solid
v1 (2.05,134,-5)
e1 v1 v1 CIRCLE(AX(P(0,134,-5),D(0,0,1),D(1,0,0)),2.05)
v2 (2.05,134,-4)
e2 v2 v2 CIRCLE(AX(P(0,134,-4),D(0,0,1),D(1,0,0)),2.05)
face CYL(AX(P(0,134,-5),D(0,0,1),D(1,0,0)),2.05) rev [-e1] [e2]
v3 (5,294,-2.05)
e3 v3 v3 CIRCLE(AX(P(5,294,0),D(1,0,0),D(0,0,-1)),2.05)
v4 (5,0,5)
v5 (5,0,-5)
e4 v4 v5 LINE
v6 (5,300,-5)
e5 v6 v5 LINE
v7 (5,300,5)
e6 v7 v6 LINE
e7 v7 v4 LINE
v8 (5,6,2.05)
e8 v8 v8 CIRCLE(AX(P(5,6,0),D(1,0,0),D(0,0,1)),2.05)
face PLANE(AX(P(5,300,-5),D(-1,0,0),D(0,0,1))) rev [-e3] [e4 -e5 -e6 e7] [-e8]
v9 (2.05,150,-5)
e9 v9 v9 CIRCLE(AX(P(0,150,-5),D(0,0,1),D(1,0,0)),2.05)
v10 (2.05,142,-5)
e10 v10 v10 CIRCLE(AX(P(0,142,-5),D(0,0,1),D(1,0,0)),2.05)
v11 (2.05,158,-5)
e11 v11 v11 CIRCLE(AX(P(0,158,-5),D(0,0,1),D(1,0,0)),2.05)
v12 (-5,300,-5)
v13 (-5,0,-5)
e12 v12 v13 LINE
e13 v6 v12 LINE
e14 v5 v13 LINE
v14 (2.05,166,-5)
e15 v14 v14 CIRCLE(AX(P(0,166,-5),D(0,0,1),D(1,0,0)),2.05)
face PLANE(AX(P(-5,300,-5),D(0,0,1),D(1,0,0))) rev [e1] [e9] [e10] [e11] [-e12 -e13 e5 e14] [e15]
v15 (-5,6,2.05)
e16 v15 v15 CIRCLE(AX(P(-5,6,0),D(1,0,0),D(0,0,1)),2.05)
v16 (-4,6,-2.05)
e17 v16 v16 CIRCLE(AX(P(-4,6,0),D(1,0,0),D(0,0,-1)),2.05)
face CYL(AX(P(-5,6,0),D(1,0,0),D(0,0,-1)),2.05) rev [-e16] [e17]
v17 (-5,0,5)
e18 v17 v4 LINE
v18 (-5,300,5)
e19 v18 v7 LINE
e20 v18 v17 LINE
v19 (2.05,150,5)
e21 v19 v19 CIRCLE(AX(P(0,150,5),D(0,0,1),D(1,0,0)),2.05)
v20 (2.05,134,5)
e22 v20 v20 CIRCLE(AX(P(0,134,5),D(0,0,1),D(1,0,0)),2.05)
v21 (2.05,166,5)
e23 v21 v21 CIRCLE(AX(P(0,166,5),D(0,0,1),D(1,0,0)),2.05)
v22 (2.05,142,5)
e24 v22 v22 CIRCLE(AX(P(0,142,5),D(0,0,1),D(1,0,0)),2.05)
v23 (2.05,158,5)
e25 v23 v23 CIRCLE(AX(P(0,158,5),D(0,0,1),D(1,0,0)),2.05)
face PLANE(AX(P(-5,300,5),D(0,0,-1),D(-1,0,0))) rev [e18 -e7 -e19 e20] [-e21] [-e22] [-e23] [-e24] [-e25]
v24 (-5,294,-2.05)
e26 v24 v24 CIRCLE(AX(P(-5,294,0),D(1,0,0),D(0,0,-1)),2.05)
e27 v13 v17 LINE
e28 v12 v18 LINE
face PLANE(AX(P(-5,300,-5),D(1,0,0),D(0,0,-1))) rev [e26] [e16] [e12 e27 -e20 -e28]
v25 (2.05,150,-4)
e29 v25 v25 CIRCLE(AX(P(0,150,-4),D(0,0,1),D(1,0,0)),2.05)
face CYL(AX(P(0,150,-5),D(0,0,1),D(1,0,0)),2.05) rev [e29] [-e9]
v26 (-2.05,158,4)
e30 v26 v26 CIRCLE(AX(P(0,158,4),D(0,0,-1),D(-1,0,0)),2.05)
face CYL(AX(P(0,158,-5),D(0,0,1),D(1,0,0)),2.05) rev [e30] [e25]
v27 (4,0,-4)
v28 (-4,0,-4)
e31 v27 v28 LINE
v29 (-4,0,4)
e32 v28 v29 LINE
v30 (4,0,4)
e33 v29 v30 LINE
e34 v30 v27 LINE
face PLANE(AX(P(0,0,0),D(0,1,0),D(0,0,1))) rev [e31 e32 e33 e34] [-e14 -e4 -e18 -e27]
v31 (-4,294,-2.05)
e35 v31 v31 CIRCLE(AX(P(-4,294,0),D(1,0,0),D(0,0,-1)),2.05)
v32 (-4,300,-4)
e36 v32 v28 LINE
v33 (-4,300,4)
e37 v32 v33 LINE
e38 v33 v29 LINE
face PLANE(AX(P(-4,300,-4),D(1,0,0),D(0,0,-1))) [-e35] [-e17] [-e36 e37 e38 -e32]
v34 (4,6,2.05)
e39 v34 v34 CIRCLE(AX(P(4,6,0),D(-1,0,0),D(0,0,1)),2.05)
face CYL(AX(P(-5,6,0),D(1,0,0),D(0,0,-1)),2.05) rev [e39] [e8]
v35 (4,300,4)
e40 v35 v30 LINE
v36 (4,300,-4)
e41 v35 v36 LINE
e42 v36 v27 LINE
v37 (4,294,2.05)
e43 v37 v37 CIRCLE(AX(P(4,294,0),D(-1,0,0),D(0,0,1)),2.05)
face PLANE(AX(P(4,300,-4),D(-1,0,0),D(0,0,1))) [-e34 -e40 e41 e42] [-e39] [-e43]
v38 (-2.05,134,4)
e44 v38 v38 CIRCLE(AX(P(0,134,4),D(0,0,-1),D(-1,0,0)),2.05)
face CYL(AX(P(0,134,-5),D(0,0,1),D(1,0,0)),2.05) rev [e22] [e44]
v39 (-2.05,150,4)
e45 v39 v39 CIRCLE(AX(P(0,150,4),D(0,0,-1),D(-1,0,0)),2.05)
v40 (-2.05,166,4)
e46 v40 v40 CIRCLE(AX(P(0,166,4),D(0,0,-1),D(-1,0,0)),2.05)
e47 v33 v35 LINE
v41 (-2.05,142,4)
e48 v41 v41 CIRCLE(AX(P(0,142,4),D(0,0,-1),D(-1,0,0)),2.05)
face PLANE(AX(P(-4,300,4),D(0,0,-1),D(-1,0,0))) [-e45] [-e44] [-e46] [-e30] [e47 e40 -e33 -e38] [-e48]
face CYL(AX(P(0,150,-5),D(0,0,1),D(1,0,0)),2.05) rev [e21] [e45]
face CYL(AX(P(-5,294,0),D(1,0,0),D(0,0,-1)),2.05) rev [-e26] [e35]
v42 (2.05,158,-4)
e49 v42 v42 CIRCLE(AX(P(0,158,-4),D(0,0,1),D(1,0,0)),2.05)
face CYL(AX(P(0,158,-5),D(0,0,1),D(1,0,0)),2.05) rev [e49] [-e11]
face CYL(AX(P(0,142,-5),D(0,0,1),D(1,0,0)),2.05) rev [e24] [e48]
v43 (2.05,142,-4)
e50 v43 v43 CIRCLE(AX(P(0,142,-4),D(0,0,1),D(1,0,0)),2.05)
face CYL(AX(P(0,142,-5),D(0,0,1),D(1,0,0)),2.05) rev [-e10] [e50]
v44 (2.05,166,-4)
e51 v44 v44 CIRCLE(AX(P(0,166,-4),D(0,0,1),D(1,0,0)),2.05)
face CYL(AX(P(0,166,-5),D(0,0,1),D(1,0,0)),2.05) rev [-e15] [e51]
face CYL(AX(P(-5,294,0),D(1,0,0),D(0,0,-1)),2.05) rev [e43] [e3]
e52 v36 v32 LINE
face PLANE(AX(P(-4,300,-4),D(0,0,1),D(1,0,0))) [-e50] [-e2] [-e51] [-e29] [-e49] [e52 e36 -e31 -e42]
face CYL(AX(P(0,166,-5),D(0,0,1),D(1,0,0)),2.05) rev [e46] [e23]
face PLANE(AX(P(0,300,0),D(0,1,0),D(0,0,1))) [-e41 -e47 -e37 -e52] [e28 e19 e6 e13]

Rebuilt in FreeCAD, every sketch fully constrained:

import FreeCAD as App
import Part
import Sketcher

V = App.Vector
Q = App.Units.Quantity

doc = App.newDocument("Part")
body = doc.addObject("PartDesign::Body", "Body")

sketch1 = body.newObject("Sketcher::SketchObject", "Sketch")
sketch1.AttachmentSupport = (doc.getObject("XZ_Plane"), [""])
sketch1.MapMode = "FlatFace"
sketch1.addGeometry([
    Part.LineSegment(V(-5, -5, 0), V(-5, 5, 0)),
    Part.LineSegment(V(-5, 5, 0), V(5, 5, 0)),
    Part.LineSegment(V(5, 5, 0), V(5, -5, 0)),
    Part.LineSegment(V(5, -5, 0), V(-5, -5, 0)),
    Part.LineSegment(V(4, 4, 0), V(-4, 4, 0)),
    Part.LineSegment(V(-4, 4, 0), V(-4, -4, 0)),
    Part.LineSegment(V(-4, -4, 0), V(4, -4, 0)),
    Part.LineSegment(V(4, -4, 0), V(4, 4, 0)),
], False)
sketch1.addConstraint([
    Sketcher.Constraint("Coincident", 0, 2, 1, 1),
    Sketcher.Constraint("Coincident", 1, 2, 2, 1),
    Sketcher.Constraint("Coincident", 2, 2, 3, 1),
    Sketcher.Constraint("Coincident", 3, 2, 0, 1),
    Sketcher.Constraint("Coincident", 4, 2, 5, 1),
    Sketcher.Constraint("Coincident", 5, 2, 6, 1),
    Sketcher.Constraint("Coincident", 6, 2, 7, 1),
    Sketcher.Constraint("Coincident", 7, 2, 4, 1),
    Sketcher.Constraint("Vertical", 0),
    Sketcher.Constraint("Horizontal", 1),
    Sketcher.Constraint("Vertical", 2),
    Sketcher.Constraint("Horizontal", 3),
    Sketcher.Constraint("Horizontal", 4),
    Sketcher.Constraint("Vertical", 5),
    Sketcher.Constraint("Horizontal", 6),
    Sketcher.Constraint("Vertical", 7),
    Sketcher.Constraint("Symmetric", 0, 2, 2, 2, -1, 1),
    Sketcher.Constraint("Symmetric", 4, 2, 6, 2, -1, 1),
    Sketcher.Constraint("Equal", 3, 0),
    Sketcher.Constraint("Equal", 6, 5),
    Sketcher.Constraint("DistanceX", 1, 1, 1, 2, Q("10 mm")),
    Sketcher.Constraint("DistanceX", 4, 2, 4, 1, Q("8 mm")),
])
pad1 = body.newObject("PartDesign::Pad", "Pad")
pad1.Profile = sketch1
pad1.Length = 300
pad1.Reversed = True

sketch2 = body.newObject("Sketcher::SketchObject", "Sketch001")
sketch2.AttachmentSupport = (doc.getObject("YZ_Plane"), [""])
sketch2.MapMode = "FlatFace"
sketch2.AttachmentOffset = App.Placement(V(0, 0, 5), App.Rotation())
sketch2.addGeometry([
    Part.Circle(V(294, 0, 0), V(0, 0, 1), 2),
    Part.Circle(V(6, 0, 0), V(0, 0, 1), 2),
], False)
sketch2.addConstraint([
    Sketcher.Constraint("Equal", 0, 1),
    Sketcher.Constraint("PointOnObject", 0, 3, -1),
    Sketcher.Constraint("PointOnObject", 1, 3, -1),
    Sketcher.Constraint("Diameter", 0, Q("4.1 mm")),
    Sketcher.Constraint("DistanceX", -1, 1, 0, 3, Q("294 mm")),
    Sketcher.Constraint("DistanceX", -1, 1, 1, 3, Q("6 mm")),
])
pocket1 = body.newObject("PartDesign::Pocket", "Pocket")
pocket1.Profile = sketch2
pocket1.Type = "ThroughAll"

sketch3 = body.newObject("Sketcher::SketchObject", "Sketch002")
sketch3.AttachmentSupport = (doc.getObject("XY_Plane"), [""])
sketch3.MapMode = "FlatFace"
sketch3.AttachmentOffset = App.Placement(V(0, 0, 5), App.Rotation())
sketch3.addGeometry([
    Part.Circle(V(0, 150, 0), V(0, 0, 1), 2),
    Part.Circle(V(0, 158, 0), V(0, 0, 1), 2),
    Part.Circle(V(0, 166, 0), V(0, 0, 1), 2),
    Part.Circle(V(0, 142, 0), V(0, 0, 1), 2),
    Part.Circle(V(0, 134, 0), V(0, 0, 1), 2),
], False)
sketch3.addConstraint([
    Sketcher.Constraint("Equal", 0, 1),
    Sketcher.Constraint("Equal", 1, 2),
    Sketcher.Constraint("Equal", 2, 3),
    Sketcher.Constraint("Equal", 3, 4),
    Sketcher.Constraint("PointOnObject", 0, 3, -2),
    Sketcher.Constraint("PointOnObject", 1, 3, -2),
    Sketcher.Constraint("PointOnObject", 2, 3, -2),
    Sketcher.Constraint("PointOnObject", 3, 3, -2),
    Sketcher.Constraint("PointOnObject", 4, 3, -2),
    Sketcher.Constraint("Diameter", 0, Q("4.1 mm")),
    Sketcher.Constraint("DistanceY", -1, 1, 0, 3, Q("150 mm")),
    Sketcher.Constraint("DistanceY", -1, 1, 1, 3, Q("158 mm")),
    Sketcher.Constraint("DistanceY", -1, 1, 2, 3, Q("166 mm")),
    Sketcher.Constraint("DistanceY", -1, 1, 3, 3, Q("142 mm")),
    Sketcher.Constraint("DistanceY", -1, 1, 4, 3, Q("134 mm")),
])
pocket2 = body.newObject("PartDesign::Pocket", "Pocket001")
pocket2.Profile = sketch3
pocket2.Type = "ThroughAll"

doc.recompute()
